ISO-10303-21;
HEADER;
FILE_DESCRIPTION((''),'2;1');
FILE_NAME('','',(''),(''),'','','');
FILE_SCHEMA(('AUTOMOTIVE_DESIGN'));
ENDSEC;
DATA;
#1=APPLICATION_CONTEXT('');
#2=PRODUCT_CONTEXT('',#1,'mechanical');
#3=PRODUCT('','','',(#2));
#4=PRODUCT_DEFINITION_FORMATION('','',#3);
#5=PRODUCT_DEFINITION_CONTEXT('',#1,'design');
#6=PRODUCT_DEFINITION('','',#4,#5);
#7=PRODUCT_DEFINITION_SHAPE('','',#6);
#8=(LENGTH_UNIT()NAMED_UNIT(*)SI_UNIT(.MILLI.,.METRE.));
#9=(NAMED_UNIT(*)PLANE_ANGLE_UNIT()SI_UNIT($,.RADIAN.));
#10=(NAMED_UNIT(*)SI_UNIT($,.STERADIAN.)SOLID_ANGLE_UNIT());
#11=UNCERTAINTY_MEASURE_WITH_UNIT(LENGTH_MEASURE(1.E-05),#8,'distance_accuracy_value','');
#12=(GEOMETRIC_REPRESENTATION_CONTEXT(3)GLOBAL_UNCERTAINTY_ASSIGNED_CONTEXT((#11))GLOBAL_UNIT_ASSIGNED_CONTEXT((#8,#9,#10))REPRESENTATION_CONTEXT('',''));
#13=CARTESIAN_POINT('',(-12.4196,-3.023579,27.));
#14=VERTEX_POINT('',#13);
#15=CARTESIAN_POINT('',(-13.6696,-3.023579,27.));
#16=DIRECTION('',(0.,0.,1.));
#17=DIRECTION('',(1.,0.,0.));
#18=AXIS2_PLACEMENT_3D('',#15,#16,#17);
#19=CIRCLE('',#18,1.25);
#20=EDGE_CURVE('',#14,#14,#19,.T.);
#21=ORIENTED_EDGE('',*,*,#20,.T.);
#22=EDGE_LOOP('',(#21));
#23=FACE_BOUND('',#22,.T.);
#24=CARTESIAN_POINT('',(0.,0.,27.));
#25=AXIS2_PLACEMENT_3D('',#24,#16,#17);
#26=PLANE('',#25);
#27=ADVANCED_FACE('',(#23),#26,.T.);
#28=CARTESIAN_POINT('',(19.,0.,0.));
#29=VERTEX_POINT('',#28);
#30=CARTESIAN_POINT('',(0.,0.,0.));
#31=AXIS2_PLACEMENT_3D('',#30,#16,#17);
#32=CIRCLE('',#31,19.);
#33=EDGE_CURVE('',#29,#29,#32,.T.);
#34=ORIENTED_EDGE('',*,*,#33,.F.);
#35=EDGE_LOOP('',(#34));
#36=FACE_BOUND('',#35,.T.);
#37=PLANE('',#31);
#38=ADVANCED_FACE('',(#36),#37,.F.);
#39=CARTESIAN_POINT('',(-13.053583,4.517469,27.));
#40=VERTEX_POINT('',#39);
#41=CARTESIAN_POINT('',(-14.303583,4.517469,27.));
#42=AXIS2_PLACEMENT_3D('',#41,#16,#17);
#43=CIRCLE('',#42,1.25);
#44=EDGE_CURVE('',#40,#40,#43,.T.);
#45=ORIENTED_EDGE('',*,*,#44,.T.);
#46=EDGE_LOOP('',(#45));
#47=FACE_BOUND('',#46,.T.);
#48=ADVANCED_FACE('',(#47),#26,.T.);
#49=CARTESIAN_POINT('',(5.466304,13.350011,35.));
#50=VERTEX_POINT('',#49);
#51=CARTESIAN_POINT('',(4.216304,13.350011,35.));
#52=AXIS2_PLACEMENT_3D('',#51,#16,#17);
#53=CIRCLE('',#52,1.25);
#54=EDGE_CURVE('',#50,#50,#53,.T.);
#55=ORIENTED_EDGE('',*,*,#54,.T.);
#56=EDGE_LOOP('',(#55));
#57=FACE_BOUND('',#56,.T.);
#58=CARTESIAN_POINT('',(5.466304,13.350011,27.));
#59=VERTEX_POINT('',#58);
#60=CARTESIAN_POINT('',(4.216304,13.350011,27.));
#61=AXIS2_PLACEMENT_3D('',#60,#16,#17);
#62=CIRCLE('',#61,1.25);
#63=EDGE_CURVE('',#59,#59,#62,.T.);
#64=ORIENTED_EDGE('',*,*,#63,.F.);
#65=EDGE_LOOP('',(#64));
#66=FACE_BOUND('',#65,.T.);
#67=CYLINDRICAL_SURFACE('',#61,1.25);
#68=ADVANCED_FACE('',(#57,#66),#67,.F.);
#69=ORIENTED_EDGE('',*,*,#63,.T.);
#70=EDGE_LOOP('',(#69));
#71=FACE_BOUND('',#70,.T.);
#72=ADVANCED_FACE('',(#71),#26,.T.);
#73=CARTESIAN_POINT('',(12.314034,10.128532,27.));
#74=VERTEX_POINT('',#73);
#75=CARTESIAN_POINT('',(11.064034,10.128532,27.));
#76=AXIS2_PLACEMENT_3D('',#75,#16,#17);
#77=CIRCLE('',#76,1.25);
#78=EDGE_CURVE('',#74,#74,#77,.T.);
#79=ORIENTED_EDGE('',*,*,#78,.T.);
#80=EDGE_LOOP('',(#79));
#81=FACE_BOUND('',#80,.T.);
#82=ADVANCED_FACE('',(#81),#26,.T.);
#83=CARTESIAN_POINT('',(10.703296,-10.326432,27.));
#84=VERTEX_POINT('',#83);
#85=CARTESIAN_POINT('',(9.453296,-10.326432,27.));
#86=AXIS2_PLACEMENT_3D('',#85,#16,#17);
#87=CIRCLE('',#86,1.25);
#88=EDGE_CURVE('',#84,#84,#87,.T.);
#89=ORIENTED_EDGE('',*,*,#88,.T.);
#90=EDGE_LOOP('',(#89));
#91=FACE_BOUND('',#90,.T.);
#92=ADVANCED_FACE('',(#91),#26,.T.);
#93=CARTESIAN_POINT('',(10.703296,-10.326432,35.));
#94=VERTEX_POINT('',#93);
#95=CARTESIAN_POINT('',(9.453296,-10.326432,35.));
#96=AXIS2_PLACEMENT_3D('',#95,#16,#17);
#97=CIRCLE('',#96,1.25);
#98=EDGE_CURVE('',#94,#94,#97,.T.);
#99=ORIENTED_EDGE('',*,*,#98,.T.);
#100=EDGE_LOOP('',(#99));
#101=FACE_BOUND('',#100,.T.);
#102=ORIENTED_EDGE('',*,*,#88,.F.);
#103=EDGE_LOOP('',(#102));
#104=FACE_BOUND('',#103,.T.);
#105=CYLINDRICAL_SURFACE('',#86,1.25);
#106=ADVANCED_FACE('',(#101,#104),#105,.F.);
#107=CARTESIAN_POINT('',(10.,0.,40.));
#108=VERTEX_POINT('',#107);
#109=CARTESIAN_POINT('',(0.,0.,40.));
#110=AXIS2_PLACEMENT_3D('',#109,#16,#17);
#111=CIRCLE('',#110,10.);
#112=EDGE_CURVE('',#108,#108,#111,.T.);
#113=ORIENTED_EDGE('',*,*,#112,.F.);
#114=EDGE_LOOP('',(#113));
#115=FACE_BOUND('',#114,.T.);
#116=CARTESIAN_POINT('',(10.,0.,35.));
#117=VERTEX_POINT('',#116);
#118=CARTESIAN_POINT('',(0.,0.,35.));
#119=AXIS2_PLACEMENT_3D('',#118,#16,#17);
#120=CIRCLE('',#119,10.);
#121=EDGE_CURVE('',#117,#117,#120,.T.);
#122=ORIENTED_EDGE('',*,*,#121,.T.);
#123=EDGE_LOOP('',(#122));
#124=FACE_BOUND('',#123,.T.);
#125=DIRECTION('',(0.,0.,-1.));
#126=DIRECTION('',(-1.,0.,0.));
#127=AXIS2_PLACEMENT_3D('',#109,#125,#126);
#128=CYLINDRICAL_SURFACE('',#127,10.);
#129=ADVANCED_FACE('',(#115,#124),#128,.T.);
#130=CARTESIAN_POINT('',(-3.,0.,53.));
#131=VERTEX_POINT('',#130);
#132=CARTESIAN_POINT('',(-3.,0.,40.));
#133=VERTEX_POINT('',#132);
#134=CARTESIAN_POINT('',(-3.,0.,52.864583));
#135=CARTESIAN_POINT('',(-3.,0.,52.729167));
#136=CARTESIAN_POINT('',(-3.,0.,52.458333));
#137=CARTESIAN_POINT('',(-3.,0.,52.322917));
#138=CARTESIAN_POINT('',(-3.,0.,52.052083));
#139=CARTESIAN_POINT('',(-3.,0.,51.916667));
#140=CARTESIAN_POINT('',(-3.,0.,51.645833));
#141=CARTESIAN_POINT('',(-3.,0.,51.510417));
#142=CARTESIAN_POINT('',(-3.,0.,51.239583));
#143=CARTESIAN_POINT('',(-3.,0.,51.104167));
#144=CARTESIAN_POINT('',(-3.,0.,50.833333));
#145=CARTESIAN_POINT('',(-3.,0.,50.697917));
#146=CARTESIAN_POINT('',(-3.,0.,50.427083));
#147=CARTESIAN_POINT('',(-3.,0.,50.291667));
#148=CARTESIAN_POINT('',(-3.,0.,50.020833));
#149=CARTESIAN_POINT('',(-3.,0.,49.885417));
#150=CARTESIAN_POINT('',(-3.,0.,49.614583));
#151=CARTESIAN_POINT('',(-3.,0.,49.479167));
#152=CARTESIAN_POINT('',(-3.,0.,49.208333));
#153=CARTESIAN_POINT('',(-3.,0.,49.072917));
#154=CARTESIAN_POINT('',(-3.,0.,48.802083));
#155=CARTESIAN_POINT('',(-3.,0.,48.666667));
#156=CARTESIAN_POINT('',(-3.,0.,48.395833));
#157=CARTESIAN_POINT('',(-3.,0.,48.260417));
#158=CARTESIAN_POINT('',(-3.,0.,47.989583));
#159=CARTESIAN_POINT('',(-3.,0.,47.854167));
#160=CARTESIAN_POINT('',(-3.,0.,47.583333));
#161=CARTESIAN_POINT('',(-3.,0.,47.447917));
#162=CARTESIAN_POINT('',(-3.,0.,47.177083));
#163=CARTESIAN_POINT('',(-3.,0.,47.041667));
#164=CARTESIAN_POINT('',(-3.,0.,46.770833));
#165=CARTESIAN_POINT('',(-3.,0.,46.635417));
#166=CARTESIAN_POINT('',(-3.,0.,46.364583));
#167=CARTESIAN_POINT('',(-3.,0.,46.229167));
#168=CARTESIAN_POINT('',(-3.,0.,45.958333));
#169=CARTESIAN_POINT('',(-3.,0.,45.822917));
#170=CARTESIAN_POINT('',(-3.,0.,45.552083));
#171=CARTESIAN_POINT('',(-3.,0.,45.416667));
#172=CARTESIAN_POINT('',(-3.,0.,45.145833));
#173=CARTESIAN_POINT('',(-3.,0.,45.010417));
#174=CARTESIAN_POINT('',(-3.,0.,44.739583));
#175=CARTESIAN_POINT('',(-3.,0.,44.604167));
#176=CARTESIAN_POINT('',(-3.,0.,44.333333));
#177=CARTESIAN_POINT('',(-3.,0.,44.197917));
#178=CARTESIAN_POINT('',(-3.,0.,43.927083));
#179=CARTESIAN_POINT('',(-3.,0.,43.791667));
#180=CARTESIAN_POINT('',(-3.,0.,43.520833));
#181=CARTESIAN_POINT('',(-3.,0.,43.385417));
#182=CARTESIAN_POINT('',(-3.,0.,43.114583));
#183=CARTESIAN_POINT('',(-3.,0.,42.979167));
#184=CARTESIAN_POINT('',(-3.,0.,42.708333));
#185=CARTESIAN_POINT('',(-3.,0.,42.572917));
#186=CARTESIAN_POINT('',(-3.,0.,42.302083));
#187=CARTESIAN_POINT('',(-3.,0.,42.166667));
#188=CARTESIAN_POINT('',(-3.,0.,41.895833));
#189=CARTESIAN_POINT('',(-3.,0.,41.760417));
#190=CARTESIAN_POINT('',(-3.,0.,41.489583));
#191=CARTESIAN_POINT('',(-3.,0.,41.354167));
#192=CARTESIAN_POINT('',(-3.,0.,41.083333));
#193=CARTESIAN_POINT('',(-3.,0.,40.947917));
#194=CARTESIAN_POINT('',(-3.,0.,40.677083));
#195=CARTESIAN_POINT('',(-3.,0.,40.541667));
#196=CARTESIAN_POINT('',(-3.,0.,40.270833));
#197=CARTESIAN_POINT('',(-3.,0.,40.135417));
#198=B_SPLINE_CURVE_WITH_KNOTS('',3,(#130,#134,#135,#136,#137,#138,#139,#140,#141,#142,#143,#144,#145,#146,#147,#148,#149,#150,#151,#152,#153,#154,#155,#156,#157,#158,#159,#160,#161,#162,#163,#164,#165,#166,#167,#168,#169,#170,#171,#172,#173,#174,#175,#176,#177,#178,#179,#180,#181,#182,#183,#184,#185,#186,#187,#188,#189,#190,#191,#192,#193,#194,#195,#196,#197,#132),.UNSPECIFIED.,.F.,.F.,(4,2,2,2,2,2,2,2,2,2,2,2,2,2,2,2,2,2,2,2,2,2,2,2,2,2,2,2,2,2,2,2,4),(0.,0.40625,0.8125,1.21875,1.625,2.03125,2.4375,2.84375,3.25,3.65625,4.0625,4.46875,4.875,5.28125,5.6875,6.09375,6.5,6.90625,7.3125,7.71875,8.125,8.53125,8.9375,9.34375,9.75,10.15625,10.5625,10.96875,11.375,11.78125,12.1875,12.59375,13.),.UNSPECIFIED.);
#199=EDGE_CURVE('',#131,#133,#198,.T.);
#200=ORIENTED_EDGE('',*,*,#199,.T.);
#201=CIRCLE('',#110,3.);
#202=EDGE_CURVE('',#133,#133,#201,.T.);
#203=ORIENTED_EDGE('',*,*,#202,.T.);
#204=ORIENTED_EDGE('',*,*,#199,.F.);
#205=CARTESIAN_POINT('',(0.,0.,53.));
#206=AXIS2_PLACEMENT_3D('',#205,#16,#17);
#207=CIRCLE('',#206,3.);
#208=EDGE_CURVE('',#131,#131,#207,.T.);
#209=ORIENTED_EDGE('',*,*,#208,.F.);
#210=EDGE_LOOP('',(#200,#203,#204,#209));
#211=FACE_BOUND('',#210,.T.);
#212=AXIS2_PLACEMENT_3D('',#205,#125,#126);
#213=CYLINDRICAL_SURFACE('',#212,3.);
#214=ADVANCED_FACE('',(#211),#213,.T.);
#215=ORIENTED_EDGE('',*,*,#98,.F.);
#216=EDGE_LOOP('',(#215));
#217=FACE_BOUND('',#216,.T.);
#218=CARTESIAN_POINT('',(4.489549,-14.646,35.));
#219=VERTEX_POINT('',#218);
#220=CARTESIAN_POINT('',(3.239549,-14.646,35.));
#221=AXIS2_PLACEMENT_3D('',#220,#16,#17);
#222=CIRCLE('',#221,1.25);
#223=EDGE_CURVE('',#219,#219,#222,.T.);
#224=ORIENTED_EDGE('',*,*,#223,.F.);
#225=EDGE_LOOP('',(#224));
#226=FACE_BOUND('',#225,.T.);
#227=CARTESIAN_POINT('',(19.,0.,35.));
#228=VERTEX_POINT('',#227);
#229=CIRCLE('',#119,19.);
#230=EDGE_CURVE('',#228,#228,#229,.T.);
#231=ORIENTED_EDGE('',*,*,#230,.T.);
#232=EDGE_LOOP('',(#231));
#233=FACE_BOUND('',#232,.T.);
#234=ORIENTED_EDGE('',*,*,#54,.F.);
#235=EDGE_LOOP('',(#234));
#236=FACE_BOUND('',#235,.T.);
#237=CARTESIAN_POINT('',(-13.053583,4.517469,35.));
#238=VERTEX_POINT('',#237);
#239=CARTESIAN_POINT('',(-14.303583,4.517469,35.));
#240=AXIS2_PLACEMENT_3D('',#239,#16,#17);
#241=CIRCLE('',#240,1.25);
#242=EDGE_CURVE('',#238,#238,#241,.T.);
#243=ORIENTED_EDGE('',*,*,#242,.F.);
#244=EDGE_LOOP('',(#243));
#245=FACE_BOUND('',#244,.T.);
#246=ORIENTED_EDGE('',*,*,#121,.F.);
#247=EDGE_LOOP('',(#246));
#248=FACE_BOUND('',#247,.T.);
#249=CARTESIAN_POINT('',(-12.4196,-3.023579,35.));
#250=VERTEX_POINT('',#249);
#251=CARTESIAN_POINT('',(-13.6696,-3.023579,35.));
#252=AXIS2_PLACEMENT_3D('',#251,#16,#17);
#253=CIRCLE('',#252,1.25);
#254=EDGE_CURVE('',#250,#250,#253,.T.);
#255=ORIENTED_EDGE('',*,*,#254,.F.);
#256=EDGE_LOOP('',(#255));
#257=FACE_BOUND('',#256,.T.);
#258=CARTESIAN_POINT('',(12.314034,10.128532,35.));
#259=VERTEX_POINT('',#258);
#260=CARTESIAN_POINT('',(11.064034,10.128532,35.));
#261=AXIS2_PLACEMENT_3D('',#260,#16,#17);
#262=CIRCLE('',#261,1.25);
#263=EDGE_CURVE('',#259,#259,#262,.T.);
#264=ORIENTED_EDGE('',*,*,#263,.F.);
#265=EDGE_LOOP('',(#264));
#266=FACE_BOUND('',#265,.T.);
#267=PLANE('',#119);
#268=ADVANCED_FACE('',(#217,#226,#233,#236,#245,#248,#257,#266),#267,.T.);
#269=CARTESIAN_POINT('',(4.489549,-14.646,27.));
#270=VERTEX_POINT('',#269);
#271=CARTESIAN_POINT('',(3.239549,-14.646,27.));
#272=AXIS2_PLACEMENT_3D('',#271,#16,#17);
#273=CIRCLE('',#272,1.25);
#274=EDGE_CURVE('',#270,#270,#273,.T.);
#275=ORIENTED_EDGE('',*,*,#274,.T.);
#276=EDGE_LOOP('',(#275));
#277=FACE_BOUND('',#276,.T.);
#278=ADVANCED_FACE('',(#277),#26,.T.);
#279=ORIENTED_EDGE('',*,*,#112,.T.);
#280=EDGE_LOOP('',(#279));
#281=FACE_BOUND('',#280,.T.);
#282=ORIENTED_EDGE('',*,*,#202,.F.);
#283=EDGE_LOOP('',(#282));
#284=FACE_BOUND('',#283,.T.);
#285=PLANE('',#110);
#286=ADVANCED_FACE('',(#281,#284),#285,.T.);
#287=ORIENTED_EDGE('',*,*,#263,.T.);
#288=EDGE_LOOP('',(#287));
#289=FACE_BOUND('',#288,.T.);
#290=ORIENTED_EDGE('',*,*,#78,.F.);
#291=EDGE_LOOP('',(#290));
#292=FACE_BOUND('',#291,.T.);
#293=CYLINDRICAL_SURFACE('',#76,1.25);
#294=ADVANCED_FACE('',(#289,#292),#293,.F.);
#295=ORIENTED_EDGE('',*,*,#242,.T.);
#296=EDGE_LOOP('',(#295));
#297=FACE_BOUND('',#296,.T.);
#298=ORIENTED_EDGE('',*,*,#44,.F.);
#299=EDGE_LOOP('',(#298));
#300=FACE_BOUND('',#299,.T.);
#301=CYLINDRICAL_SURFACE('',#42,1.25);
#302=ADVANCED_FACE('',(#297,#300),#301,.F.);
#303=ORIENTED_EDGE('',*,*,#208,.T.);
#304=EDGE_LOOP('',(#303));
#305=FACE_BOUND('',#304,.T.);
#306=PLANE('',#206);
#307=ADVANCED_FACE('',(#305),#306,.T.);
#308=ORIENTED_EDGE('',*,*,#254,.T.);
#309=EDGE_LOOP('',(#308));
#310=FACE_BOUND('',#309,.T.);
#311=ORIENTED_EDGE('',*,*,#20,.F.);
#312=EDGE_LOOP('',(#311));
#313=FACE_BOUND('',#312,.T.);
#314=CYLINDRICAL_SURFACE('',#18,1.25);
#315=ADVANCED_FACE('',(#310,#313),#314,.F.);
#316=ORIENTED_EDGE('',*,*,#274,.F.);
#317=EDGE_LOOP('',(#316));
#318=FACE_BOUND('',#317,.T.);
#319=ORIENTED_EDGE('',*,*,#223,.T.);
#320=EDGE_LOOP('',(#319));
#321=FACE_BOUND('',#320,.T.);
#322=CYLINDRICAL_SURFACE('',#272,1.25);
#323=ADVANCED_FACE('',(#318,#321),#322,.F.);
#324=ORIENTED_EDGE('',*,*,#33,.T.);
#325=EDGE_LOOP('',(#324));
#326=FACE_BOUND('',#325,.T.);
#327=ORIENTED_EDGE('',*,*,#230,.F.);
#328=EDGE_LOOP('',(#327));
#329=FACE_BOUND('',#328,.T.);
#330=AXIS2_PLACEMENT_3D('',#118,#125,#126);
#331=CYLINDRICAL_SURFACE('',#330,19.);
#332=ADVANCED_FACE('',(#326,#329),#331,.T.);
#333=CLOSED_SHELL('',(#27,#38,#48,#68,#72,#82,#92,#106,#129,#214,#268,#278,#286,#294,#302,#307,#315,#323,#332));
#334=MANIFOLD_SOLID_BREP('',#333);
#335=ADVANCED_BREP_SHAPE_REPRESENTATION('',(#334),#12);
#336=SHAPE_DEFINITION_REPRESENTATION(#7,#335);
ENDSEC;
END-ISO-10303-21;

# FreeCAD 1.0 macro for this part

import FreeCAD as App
import Part
import Sketcher

V = App.Vector
Q = App.Units.Quantity

doc = App.newDocument("Part")
body = doc.addObject("PartDesign::Body", "Body")

sketch1 = body.newObject("Sketcher::SketchObject", "Sketch")
sketch1.AttachmentSupport = (doc.getObject("XY_Plane"), [""])
sketch1.MapMode = "FlatFace"
sketch1.addGeometry(Part.Circle(V(0, 0, 0), V(0, 0, 1), 19), False)
sketch1.addConstraint(Sketcher.Constraint("Coincident", 0, 3, -1, 1))
sketch1.addConstraint(Sketcher.Constraint("Diameter", 0, Q("38 mm")))
pad1 = body.newObject("PartDesign::Pad", "Pad")
pad1.Profile = sketch1
pad1.Length = 35

sketch2 = body.newObject("Sketcher::SketchObject", "Sketch001")
sketch2.AttachmentSupport = (doc.getObject("XY_Plane"), [""])
sketch2.MapMode = "FlatFace"
sketch2.AttachmentOffset = App.Placement(V(0, 0, 35), App.Rotation())
sketch2.addGeometry(Part.Circle(V(0, 0, 0), V(0, 0, 1), 10), False)
sketch2.addConstraint(Sketcher.Constraint("Coincident", 0, 3, -1, 1))
sketch2.addConstraint(Sketcher.Constraint("Diameter", 0, Q("20 mm")))
pad2 = body.newObject("PartDesign::Pad", "Pad001")
pad2.Profile = sketch2
pad2.Length = 5

sketch3 = body.newObject("Sketcher::SketchObject", "Sketch002")
sketch3.AttachmentSupport = (doc.getObject("XY_Plane"), [""])
sketch3.MapMode = "FlatFace"
sketch3.AttachmentOffset = App.Placement(V(0, 0, 40), App.Rotation())
sketch3.addGeometry(Part.Circle(V(0, 0, 0), V(0, 0, 1), 3), False)
sketch3.addConstraint(Sketcher.Constraint("Coincident", 0, 3, -1, 1))
sketch3.addConstraint(Sketcher.Constraint("Diameter", 0, Q("6 mm")))
pad3 = body.newObject("PartDesign::Pad", "Pad002")
pad3.Profile = sketch3
pad3.Length = 13

sketch4 = body.newObject("Sketcher::SketchObject", "Sketch003")
sketch4.AttachmentSupport = (doc.getObject("XY_Plane"), [""])
sketch4.MapMode = "FlatFace"
sketch4.AttachmentOffset = App.Placement(V(0, 0, 35), App.Rotation())
sketch4.addGeometry(Part.Circle(V(3.2, -14.6, 0), V(0, 0, 1), 1.2), False)
sketch4.addGeometry(Part.Circle(V(9.5, -10.3, 0), V(0, 0, 1), 1.2), False)
sketch4.addGeometry(Part.Circle(V(-13.7, -3, 0), V(0, 0, 1), 1.2), False)
sketch4.addGeometry(Part.Circle(V(-14.3, 4.5, 0), V(0, 0, 1), 1.2), False)
sketch4.addGeometry(Part.Circle(V(4.2, 13.4, 0), V(0, 0, 1), 1.2), False)
sketch4.addGeometry(Part.Circle(V(11.1, 10.1, 0), V(0, 0, 1), 1.2), False)
sketch4.addConstraint(Sketcher.Constraint("Equal", 0, 1))
sketch4.addConstraint(Sketcher.Constraint("Equal", 1, 2))
sketch4.addConstraint(Sketcher.Constraint("Equal", 2, 3))
sketch4.addConstraint(Sketcher.Constraint("Equal", 3, 4))
sketch4.addConstraint(Sketcher.Constraint("Equal", 4, 5))
sketch4.addConstraint(Sketcher.Constraint("Diameter", 0, Q("2.5 mm")))
sketch4.addConstraint(Sketcher.Constraint("DistanceY", 0, 3, -1, 1, Q("14.646 mm")))
sketch4.addConstraint(Sketcher.Constraint("DistanceX", 2, 3, -1, 1, Q("13.6696 mm")))
sketch4.addConstraint(Sketcher.Constraint("DistanceY", 1, 3, 3, 3, Q("14.8439 mm")))
sketch4.addConstraint(Sketcher.Constraint("DistanceX", -1, 1, 0, 3, Q("3.239549 mm")))
sketch4.addConstraint(Sketcher.Constraint("DistanceY", 1, 3, -1, 1, Q("10.326432 mm")))
sketch4.addConstraint(Sketcher.Constraint("DistanceY", 2, 3, -1, 1, Q("3.023579 mm")))
sketch4.addConstraint(Sketcher.Constraint("DistanceY", -1, 1, 4, 3, Q("13.350011 mm")))
sketch4.addConstraint(Sketcher.Constraint("DistanceY", -1, 1, 5, 3, Q("10.128532 mm")))
sketch4.addConstraint(Sketcher.Constraint("DistanceX", 3, 3, 0, 3, Q("17.543132 mm")))
sketch4.addConstraint(Sketcher.Constraint("DistanceX", 3, 3, 1, 3, Q("23.756879 mm")))
sketch4.addConstraint(Sketcher.Constraint("DistanceX", 4, 3, 5, 3, Q("6.84773 mm")))
sketch4.addConstraint(Sketcher.Constraint("DistanceX", -1, 1, 4, 3, Q("4.216304 mm")))
pocket1 = body.newObject("PartDesign::Pocket", "Pocket")
pocket1.Profile = sketch4
pocket1.Length = 8

doc.recompute()
